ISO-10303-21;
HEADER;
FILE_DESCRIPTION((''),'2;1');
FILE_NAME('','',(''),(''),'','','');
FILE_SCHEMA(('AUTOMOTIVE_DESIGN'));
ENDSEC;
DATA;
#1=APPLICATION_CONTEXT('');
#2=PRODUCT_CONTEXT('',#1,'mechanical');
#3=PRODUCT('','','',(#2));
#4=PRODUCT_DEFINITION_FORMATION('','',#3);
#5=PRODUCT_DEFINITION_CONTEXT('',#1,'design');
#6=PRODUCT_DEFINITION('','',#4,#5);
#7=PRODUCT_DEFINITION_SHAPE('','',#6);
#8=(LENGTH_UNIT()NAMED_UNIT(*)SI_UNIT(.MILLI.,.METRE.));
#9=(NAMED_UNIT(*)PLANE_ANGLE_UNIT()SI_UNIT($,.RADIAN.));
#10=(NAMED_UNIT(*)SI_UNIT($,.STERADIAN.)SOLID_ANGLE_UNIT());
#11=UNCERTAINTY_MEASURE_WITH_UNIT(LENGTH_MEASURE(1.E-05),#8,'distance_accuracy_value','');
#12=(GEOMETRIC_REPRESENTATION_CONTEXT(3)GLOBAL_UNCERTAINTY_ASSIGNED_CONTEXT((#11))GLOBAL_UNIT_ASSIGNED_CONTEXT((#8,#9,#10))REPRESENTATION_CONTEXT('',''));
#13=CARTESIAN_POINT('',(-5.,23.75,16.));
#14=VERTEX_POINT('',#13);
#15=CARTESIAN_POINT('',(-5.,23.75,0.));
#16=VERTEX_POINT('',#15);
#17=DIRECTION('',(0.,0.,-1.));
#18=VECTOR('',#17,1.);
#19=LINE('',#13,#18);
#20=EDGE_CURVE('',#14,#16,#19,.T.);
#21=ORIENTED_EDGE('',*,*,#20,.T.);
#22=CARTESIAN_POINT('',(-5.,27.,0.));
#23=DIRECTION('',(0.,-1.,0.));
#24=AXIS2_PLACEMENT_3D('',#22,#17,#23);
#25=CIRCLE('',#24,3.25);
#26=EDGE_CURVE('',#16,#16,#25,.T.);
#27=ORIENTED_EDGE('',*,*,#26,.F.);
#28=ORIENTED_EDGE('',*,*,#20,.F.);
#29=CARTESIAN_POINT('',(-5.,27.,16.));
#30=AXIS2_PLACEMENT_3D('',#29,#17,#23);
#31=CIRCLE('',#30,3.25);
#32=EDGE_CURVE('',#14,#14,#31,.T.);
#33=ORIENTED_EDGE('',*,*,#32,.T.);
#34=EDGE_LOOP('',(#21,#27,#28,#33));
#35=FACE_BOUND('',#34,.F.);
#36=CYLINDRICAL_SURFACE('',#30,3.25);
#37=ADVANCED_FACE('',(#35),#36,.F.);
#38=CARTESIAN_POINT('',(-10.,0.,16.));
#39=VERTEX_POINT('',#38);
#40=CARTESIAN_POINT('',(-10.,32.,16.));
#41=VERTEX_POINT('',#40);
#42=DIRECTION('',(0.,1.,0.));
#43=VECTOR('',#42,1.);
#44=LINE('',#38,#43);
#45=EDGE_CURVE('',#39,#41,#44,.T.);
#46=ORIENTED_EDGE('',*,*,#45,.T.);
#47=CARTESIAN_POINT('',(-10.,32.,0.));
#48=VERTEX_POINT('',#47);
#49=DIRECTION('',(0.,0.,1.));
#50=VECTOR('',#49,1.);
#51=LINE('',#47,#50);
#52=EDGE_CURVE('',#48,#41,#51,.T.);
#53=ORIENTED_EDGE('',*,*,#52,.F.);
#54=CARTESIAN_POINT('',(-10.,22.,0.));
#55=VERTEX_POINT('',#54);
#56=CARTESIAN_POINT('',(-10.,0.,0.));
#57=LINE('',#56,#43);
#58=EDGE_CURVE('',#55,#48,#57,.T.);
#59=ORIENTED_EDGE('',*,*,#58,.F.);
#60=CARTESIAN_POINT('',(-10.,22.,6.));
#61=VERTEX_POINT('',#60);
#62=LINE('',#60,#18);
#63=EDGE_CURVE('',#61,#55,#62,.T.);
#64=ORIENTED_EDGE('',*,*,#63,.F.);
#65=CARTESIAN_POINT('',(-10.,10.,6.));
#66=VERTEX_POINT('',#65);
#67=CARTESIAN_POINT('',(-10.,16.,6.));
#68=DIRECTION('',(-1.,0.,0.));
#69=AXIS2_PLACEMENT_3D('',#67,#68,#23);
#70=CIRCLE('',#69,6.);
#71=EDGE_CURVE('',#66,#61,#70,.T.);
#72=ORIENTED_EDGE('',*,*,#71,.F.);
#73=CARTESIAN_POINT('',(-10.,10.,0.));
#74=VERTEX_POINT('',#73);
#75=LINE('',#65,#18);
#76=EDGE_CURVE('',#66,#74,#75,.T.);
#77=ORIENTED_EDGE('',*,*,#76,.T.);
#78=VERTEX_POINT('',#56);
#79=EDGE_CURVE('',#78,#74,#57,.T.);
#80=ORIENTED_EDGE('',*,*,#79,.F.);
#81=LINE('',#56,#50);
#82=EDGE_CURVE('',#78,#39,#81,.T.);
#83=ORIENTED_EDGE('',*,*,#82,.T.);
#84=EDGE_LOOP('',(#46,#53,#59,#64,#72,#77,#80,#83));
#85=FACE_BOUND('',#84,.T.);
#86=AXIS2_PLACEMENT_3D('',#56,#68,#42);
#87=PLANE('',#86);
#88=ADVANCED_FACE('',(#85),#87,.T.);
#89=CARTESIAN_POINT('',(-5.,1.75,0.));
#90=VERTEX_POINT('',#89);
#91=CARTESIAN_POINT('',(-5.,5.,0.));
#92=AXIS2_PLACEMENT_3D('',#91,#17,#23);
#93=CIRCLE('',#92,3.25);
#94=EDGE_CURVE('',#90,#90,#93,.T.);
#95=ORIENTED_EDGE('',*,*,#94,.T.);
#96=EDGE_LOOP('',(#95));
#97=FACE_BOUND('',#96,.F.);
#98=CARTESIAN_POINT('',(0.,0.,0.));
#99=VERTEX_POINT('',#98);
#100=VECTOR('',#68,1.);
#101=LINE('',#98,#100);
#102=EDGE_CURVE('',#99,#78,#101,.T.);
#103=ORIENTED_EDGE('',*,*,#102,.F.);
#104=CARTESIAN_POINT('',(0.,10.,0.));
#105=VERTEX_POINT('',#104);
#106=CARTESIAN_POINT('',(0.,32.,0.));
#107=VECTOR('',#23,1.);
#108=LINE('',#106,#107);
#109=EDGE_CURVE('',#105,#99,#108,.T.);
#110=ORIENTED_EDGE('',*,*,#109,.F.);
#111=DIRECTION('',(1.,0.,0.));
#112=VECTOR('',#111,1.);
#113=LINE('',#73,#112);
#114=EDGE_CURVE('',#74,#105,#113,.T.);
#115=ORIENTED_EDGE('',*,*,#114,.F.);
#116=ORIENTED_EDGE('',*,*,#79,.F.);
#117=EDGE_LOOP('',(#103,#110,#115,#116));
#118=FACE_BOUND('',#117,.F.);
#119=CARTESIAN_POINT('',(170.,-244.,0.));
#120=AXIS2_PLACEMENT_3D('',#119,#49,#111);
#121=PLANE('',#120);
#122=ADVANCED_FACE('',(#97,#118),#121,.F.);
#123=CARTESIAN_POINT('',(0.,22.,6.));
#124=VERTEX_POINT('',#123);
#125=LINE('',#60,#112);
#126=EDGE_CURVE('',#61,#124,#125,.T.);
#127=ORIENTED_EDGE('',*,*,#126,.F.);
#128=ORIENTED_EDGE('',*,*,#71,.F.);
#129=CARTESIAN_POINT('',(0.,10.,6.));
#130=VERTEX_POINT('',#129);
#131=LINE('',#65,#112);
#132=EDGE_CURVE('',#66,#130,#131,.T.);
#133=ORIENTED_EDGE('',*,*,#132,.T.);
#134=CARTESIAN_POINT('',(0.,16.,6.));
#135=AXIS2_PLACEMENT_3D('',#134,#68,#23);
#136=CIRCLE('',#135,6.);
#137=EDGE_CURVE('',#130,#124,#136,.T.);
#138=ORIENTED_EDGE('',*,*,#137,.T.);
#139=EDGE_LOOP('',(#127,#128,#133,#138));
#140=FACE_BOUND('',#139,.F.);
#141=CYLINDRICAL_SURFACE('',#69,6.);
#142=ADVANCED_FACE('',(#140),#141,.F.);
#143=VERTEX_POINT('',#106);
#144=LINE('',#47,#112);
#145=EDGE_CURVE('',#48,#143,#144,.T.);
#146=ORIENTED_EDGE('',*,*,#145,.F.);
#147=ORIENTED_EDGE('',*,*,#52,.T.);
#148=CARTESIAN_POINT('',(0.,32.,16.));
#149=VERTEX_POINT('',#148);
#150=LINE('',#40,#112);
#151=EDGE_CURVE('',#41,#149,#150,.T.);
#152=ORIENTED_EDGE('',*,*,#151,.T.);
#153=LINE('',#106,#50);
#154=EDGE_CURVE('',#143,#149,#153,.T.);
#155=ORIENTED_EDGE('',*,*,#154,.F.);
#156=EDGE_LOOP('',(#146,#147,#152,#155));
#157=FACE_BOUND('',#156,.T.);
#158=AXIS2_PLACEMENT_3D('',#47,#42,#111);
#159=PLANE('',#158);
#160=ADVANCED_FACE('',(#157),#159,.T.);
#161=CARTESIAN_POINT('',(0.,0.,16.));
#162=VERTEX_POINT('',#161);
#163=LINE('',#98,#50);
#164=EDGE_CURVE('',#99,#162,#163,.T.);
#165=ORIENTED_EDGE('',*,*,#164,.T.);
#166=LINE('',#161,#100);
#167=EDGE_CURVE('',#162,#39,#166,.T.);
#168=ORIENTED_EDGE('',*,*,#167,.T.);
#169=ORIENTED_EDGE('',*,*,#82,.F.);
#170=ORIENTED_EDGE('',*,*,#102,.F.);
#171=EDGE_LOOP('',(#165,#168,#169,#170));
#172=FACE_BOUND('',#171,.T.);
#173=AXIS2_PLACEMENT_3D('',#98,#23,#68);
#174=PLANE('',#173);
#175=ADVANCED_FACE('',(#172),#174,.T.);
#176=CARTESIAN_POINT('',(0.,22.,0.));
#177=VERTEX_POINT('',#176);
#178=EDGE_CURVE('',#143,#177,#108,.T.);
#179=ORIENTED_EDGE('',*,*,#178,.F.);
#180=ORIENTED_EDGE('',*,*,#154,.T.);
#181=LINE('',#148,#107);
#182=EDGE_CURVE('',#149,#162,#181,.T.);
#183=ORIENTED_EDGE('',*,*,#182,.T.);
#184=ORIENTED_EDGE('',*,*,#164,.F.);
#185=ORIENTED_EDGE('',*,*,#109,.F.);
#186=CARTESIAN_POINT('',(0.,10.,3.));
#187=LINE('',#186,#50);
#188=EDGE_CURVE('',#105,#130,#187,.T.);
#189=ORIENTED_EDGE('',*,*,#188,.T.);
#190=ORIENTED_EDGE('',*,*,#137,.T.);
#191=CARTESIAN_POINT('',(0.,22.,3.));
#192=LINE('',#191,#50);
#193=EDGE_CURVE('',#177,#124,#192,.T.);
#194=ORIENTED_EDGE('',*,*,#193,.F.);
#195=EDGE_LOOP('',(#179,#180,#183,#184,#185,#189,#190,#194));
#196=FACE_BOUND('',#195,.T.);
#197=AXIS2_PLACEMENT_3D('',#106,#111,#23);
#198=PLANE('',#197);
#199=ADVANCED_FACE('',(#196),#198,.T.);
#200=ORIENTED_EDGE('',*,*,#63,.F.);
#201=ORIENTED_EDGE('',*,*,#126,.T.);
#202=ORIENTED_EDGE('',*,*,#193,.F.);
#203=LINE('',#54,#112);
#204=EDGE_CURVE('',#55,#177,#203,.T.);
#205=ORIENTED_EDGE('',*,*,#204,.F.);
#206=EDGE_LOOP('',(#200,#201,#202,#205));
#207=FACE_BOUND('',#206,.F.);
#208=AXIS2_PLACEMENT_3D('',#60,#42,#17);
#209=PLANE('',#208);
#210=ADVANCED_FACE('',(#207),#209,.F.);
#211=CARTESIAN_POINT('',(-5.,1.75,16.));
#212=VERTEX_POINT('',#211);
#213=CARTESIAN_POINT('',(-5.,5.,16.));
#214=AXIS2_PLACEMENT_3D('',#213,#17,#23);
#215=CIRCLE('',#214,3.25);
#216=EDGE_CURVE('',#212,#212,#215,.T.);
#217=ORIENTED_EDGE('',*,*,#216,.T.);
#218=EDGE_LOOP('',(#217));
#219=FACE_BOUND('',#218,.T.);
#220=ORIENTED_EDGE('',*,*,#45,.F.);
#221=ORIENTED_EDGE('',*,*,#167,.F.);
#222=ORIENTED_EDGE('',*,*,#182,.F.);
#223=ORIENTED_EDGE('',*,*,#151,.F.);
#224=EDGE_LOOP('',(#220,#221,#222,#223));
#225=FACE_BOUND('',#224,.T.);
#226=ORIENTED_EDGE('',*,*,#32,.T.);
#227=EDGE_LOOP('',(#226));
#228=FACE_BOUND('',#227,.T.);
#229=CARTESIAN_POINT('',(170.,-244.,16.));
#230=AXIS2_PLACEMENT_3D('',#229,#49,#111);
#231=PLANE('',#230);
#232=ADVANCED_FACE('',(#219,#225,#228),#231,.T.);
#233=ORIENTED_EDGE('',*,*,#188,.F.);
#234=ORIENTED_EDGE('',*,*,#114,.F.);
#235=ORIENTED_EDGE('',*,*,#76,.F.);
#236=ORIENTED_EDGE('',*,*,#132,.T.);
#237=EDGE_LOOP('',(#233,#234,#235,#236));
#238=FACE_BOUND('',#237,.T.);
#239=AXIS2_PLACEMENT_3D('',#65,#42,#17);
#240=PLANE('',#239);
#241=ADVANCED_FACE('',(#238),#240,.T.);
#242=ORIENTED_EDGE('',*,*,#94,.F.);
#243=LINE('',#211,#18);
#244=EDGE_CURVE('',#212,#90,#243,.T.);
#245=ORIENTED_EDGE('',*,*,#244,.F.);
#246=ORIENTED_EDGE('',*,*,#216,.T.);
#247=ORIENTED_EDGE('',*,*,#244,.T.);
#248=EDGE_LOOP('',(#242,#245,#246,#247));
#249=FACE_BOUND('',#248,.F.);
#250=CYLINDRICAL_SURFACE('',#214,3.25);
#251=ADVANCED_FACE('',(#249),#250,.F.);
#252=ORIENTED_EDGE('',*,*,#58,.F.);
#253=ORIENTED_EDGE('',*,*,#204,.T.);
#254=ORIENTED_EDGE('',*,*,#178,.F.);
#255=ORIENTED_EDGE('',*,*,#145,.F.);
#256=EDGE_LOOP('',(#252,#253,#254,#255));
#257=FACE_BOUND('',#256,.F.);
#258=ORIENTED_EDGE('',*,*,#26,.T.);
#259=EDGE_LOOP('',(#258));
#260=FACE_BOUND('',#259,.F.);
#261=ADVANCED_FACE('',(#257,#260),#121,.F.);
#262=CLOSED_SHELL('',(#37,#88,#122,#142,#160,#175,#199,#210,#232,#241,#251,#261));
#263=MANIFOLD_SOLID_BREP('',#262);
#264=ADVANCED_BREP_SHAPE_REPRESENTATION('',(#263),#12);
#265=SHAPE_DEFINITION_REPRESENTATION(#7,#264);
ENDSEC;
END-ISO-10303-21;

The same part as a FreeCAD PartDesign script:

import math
import FreeCAD as App
import Part
import Sketcher

V = App.Vector
Q = App.Units.Quantity

doc = App.newDocument("Part")
body = doc.addObject("PartDesign::Body", "Body")

sketch1 = body.newObject("Sketcher::SketchObject", "Sketch")
sketch1.AttachmentSupport = (doc.getObject("XY_Plane"), [""])
sketch1.MapMode = "FlatFace"
sketch1.addGeometry([
    Part.LineSegment(V(-10, 0, 0), V(0, 0, 0)),
    Part.LineSegment(V(0, 0, 0), V(0, 32, 0)),
    Part.LineSegment(V(0, 32, 0), V(-10, 32, 0)),
    Part.LineSegment(V(-10, 32, 0), V(-10, 0, 0)),
], False)
sketch1.addConstraint([
    Sketcher.Constraint("Coincident", 0, 2, 1, 1),
    Sketcher.Constraint("Coincident", 1, 2, 2, 1),
    Sketcher.Constraint("Coincident", 2, 2, 3, 1),
    Sketcher.Constraint("Coincident", 3, 2, 0, 1),
    Sketcher.Constraint("Horizontal", 0),
    Sketcher.Constraint("Vertical", 1),
    Sketcher.Constraint("Horizontal", 2),
    Sketcher.Constraint("Vertical", 3),
    Sketcher.Constraint("Coincident", 0, 2, -1, 1),
    Sketcher.Constraint("DistanceX", 0, 1, 0, 2, Q("10 mm")),
    Sketcher.Constraint("DistanceY", 1, 1, 1, 2, Q("32 mm")),
])
pad1 = body.newObject("PartDesign::Pad", "Pad")
pad1.Profile = sketch1
pad1.Length = 16

sketch2 = body.newObject("Sketcher::SketchObject", "Sketch001")
sketch2.AttachmentSupport = (doc.getObject("YZ_Plane"), [""])
sketch2.MapMode = "FlatFace"
sketch2.AttachmentOffset = App.Placement(V(0, 0, -10), App.Rotation())
sketch2.addGeometry([
    Part.LineSegment(V(10, 0, 0), V(10, 6, 0)),
    Part.ArcOfCircle(Part.Circle(V(16, 6, 0), V(0, 0, 1), 6), math.radians(0), math.radians(180)),
    Part.LineSegment(V(22, 6, 0), V(22, 0, 0)),
    Part.LineSegment(V(22, 0, 0), V(10, 0, 0)),
], False)
sketch2.addConstraint([
    Sketcher.Constraint("Tangent", 0, 2, 1, 2),
    Sketcher.Constraint("Tangent", 1, 1, 2, 1),
    Sketcher.Constraint("Coincident", 2, 2, 3, 1),
    Sketcher.Constraint("Coincident", 3, 2, 0, 1),
    Sketcher.Constraint("Vertical", 0),
    Sketcher.Constraint("Vertical", 2),
    Sketcher.Constraint("Horizontal", 3),
    Sketcher.Constraint("PointOnObject", 2, 2, -1),
    Sketcher.Constraint("Radius", 1, Q("6 mm")),
    Sketcher.Constraint("DistanceY", 0, 1, 0, 2, Q("6 mm")),
    Sketcher.Constraint("DistanceX", -1, 1, 1, 3, Q("16 mm")),
])
pocket1 = body.newObject("PartDesign::Pocket", "Pocket")
pocket1.Profile = sketch2
pocket1.Length = 16
pocket1.Reversed = True

sketch3 = body.newObject("Sketcher::SketchObject", "Sketch002")
sketch3.AttachmentSupport = (doc.getObject("XY_Plane"), [""])
sketch3.MapMode = "FlatFace"
sketch3.AttachmentOffset = App.Placement(V(0, 0, 16), App.Rotation())
sketch3.addGeometry([
    Part.Circle(V(-5, 5, 0), V(0, 0, 1), 3.2),
    Part.Circle(V(-5, 27, 0), V(0, 0, 1), 3.2),
], False)
sketch3.addConstraint([
    Sketcher.Constraint("Equal", 0, 1),
    Sketcher.Constraint("Vertical", 0, 3, 1, 3),
    Sketcher.Constraint("Diameter", 0, Q("6.5 mm")),
    Sketcher.Constraint("DistanceX", 0, 3, -1, 1, Q("5 mm")),
    Sketcher.Constraint("DistanceY", -1, 1, 0, 3, Q("5 mm")),
    Sketcher.Constraint("DistanceY", -1, 1, 1, 3, Q("27 mm")),
])
doc.recompute()
hole = body.newObject("PartDesign::Hole", "Hole")
hole.Profile = sketch3
hole.ThreadType = "None"
hole.Diameter = 6.5
hole.DepthType = "ThroughAll"

doc.recompute()
